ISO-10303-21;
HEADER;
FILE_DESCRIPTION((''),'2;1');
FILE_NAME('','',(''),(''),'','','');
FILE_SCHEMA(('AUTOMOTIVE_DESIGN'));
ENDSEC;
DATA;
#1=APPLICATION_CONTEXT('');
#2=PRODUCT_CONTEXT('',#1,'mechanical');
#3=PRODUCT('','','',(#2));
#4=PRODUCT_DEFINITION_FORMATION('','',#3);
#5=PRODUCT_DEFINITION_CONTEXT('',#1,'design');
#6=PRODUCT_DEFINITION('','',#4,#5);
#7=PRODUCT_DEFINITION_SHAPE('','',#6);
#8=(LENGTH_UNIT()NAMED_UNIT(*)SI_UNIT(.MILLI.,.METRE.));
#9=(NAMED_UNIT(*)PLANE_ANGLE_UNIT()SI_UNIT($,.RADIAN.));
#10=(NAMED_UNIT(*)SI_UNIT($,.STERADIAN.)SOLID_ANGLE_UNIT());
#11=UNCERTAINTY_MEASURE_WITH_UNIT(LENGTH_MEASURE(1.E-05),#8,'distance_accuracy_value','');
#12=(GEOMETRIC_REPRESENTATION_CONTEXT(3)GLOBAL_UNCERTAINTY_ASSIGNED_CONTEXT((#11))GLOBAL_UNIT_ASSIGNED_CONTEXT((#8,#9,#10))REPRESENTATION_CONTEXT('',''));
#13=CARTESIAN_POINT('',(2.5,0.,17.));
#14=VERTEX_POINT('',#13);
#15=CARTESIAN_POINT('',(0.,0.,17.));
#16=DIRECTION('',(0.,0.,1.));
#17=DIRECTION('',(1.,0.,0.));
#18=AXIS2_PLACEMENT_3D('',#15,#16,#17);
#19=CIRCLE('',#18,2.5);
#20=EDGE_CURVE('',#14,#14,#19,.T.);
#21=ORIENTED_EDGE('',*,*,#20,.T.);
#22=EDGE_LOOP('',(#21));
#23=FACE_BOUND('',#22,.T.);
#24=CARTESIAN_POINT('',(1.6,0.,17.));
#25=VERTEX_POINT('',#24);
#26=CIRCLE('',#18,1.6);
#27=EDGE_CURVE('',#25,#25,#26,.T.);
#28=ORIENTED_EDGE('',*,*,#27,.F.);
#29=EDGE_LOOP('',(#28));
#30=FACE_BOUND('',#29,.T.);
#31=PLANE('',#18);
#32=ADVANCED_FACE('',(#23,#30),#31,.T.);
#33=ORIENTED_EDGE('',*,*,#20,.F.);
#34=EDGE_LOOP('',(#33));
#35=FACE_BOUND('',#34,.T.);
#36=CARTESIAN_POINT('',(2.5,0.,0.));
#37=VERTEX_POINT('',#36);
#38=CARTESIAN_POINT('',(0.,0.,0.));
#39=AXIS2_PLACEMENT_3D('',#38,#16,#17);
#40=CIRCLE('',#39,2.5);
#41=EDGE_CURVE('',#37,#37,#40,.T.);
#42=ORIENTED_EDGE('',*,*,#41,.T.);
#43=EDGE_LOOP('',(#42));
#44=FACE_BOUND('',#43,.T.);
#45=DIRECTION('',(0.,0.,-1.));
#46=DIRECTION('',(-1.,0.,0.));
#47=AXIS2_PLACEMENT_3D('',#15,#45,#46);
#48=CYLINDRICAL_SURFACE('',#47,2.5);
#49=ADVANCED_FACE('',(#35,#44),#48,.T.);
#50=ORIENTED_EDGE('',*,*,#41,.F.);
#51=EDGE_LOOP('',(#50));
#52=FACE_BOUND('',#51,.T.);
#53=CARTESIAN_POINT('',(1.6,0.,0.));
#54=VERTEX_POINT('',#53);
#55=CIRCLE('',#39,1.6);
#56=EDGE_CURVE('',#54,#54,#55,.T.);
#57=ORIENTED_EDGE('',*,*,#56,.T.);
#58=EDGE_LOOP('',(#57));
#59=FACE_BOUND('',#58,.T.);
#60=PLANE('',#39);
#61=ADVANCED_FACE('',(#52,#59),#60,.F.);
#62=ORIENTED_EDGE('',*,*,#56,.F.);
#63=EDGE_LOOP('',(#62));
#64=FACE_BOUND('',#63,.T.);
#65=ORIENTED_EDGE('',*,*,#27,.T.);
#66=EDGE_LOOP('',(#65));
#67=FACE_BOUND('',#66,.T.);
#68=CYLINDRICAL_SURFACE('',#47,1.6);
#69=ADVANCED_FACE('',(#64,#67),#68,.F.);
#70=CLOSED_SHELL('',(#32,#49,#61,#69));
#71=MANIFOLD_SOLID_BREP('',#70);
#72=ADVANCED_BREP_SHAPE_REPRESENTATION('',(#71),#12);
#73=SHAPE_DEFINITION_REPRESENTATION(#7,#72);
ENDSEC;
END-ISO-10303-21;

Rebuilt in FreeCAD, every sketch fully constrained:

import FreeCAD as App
import Part
import Sketcher

doc = App.newDocument("Part")
params = doc.addObject("Spreadsheet::Sheet", "Params")
for row, (alias, value) in enumerate([
    ("sketch1_diameter", "5 mm"),
    ("sketch1_diameter2", "3.2 mm"),
    ("pad1_length", "17 mm"),
], start=1):
    params.set(f"A{row}", alias)
    params.set(f"B{row}", "=" + value)
    params.setAlias(f"B{row}", alias)

body = doc.addObject("PartDesign::Body", "Body")

# Sketch on XY plane
sketch1 = body.newObject("Sketcher::SketchObject", "Sketch")
sketch1.AttachmentSupport = (doc.getObject("XY_Plane"), [""])
sketch1.MapMode = "FlatFace"
sketch1.addGeometry(Part.Circle(App.Vector(0, 0, 0), App.Vector(0, 0, 1), 2.5), False)
sketch1.addGeometry(Part.Circle(App.Vector(0, 0, 0), App.Vector(0, 0, 1), 1.6), False)
sketch1.addConstraint(Sketcher.Constraint("Coincident", 0, 3, -1, 1))
sketch1.addConstraint(Sketcher.Constraint("Coincident", 1, 3, -1, 1))
sketch1.addConstraint(Sketcher.Constraint("Diameter", 0, 5.0))
sketch1.addConstraint(Sketcher.Constraint("Diameter", 1, 3.2))
sketch1.setExpression("Constraints[2]", "Params.sketch1_diameter")
sketch1.setExpression("Constraints[3]", "Params.sketch1_diameter2")
pad1 = body.newObject("PartDesign::Pad", "Pad")
pad1.Profile = sketch1
pad1.setExpression("Length", "Params.pad1_length")

doc.recompute()
